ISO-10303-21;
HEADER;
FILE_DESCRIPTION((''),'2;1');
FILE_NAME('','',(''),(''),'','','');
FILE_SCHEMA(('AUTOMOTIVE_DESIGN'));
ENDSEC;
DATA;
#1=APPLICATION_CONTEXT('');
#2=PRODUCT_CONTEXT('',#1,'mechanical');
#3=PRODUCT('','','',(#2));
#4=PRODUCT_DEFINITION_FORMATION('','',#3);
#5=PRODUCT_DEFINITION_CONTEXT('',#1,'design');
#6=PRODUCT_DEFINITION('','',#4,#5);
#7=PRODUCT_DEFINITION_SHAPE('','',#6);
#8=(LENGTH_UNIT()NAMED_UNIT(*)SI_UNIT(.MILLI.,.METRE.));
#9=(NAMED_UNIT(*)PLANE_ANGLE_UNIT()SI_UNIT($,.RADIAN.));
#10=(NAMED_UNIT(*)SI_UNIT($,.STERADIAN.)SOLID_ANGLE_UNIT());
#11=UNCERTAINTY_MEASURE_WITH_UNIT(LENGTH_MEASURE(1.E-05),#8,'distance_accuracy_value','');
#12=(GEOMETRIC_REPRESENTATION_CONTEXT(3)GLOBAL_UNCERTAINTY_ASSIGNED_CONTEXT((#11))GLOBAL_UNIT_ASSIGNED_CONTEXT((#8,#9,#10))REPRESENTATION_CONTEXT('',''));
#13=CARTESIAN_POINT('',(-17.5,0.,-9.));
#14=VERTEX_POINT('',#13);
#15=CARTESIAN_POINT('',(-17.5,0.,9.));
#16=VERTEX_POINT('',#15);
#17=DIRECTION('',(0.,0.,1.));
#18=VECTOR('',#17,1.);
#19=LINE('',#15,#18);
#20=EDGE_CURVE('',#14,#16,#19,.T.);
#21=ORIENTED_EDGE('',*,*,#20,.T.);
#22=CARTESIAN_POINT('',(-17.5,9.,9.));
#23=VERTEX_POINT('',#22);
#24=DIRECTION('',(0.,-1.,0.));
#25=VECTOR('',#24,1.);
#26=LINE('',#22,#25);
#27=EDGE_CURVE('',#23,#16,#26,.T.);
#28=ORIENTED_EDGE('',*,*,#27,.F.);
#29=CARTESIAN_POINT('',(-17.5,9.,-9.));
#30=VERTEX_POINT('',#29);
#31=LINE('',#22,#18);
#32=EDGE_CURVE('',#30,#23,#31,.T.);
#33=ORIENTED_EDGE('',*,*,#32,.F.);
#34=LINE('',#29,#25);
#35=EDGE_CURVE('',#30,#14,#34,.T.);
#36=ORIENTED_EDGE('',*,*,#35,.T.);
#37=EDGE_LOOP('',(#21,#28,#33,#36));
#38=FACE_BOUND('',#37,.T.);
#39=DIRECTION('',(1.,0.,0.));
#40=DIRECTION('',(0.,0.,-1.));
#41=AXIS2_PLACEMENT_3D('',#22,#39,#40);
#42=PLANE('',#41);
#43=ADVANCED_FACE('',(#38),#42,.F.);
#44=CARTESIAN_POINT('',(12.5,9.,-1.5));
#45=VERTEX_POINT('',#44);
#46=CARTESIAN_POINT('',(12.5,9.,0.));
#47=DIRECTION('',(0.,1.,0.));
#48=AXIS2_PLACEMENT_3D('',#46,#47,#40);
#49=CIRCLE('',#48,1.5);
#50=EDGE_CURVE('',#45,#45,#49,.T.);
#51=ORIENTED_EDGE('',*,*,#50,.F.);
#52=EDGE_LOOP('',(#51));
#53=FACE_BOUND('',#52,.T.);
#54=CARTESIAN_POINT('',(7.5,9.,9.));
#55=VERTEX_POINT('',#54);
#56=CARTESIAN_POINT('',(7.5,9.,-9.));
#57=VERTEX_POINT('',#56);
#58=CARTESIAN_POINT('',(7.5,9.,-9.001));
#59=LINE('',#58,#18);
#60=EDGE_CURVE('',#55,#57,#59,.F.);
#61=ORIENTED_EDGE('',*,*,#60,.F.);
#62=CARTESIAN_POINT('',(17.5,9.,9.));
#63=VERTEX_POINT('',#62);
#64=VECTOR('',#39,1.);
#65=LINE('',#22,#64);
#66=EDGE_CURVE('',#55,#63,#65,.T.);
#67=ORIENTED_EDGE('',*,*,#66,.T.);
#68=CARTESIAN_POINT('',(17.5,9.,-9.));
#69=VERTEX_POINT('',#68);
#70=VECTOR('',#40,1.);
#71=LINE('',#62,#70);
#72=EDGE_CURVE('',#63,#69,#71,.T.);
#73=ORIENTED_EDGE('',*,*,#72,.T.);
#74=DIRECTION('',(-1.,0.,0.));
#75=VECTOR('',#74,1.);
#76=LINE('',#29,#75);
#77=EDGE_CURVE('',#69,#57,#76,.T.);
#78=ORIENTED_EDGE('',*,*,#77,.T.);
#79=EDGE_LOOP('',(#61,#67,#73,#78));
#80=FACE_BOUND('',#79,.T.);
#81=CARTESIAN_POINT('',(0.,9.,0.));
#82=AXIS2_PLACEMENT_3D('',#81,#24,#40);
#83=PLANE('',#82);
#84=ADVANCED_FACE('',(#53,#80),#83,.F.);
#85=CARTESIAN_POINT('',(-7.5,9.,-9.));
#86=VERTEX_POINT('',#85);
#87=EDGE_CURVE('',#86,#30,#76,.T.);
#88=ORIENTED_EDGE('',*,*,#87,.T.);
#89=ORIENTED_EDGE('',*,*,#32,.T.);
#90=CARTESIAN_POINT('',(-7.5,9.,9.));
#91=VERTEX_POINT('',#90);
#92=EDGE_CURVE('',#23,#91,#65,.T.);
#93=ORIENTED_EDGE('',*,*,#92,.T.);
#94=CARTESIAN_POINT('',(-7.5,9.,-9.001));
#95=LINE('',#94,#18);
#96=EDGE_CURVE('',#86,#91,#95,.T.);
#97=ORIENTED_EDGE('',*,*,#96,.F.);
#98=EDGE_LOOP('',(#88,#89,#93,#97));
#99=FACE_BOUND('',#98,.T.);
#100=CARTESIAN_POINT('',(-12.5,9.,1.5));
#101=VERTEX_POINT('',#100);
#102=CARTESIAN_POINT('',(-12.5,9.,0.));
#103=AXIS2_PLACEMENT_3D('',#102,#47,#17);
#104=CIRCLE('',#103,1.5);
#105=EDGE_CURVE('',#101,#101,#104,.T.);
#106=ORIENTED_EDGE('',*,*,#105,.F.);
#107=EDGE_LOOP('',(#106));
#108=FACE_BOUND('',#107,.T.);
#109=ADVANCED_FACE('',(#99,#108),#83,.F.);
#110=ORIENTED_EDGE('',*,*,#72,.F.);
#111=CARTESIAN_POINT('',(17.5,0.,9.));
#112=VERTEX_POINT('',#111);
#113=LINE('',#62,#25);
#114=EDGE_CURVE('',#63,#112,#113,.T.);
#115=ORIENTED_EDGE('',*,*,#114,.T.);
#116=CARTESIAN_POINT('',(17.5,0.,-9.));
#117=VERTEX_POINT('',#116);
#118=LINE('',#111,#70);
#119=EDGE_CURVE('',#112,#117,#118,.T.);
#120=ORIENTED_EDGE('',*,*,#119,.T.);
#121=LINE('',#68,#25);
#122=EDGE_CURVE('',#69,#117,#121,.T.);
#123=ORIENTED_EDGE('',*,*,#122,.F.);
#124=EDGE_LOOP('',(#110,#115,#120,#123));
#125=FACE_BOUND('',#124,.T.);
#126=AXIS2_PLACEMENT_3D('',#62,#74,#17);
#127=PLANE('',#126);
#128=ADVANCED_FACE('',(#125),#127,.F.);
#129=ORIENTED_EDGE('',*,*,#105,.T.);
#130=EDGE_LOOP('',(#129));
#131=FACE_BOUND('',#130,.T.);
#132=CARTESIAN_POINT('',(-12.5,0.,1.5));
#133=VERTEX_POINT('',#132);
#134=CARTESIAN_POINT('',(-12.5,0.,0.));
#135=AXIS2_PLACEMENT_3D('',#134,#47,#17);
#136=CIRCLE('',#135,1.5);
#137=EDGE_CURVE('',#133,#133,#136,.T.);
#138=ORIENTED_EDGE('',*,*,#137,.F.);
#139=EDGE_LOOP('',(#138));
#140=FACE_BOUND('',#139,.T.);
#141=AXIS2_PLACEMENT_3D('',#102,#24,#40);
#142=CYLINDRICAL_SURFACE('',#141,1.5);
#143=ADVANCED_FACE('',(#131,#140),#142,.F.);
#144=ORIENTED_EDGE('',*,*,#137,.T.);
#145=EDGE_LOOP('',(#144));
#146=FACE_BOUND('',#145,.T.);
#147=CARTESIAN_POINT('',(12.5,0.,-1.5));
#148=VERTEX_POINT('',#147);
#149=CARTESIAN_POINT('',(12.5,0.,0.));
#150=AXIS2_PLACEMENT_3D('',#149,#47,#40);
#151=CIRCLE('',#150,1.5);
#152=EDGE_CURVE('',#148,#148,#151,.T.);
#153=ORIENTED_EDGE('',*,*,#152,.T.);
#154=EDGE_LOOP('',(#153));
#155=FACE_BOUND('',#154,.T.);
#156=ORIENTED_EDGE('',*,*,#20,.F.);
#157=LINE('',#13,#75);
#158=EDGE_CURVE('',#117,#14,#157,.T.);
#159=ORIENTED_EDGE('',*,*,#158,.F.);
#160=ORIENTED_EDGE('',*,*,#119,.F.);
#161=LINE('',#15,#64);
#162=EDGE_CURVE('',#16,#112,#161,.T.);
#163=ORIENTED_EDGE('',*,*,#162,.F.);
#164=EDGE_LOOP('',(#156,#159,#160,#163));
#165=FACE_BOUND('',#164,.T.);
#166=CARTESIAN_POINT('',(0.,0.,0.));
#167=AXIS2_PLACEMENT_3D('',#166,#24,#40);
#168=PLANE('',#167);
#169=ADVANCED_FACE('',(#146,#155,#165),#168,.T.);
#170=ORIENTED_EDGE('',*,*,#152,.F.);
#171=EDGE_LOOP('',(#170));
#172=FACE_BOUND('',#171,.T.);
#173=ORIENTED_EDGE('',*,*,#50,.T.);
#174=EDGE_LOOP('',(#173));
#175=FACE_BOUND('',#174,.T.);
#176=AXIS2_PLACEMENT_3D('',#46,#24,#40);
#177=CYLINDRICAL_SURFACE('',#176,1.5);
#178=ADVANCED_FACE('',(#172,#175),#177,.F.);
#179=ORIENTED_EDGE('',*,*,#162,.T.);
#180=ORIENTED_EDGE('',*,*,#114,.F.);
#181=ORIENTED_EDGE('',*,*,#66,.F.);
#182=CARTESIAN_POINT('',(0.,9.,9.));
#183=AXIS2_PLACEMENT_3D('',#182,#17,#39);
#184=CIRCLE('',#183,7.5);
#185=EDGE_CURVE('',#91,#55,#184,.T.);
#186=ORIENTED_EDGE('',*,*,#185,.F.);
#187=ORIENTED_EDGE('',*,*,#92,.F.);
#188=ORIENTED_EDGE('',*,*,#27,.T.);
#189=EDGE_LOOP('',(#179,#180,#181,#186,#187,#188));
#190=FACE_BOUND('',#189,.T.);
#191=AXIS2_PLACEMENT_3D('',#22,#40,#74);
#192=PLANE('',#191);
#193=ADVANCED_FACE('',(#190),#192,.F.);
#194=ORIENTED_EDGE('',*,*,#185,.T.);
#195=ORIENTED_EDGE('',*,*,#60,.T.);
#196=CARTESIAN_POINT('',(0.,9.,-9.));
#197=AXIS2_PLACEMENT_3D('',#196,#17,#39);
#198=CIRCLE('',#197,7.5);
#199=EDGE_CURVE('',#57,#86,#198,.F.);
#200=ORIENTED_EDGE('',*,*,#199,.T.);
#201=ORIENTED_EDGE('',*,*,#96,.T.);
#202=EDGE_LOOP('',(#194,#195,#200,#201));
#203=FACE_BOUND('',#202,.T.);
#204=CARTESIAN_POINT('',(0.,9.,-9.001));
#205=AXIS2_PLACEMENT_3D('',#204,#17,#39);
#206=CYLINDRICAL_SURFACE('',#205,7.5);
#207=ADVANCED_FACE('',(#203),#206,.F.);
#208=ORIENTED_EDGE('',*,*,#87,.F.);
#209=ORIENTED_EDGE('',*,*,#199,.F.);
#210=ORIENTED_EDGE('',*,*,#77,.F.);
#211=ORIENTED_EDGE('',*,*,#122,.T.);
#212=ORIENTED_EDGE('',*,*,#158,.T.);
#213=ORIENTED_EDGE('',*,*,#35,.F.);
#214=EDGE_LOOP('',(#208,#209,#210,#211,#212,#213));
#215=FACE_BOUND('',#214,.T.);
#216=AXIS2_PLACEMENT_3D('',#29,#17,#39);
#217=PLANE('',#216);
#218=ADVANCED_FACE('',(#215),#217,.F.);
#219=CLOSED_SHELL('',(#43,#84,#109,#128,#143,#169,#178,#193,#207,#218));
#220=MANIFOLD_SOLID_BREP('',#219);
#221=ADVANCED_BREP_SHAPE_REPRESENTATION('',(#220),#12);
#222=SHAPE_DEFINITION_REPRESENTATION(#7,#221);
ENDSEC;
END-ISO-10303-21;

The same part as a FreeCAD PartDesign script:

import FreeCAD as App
import Part
import Sketcher
from FreeCAD import Vector


def add_polygon(sketch, points):
    """Adds a closed chain of lines whose ends are joined by coincident constraints."""
    first, n = sketch.GeometryCount, len(points)
    for a, b in zip(points, points[1:] + points[:1]):
        sketch.addGeometry(Part.LineSegment(App.Vector(*a, 0), App.Vector(*b, 0)), False)
    for i in range(n):
        sketch.addConstraint(Sketcher.Constraint("Coincident", first + i, 2, first + (i + 1) % n, 1))

doc = App.newDocument("Part")
params = doc.addObject("Spreadsheet::Sheet", "Params")
for row, (alias, value) in enumerate([
    ("sketch1_diameter", "3 mm"),
    ("sketch1_width", "35 mm"),
    ("sketch1_height", "18 mm"),
    ("pad1_length", "9 mm"),
    ("sketch2_diameter", "15 mm"),
], start=1):
    params.set(f"A{row}", alias)
    params.set(f"B{row}", "=" + value)
    params.setAlias(f"B{row}", alias)

body = doc.addObject("PartDesign::Body", "Body")

sketch1 = body.newObject("Sketcher::SketchObject", "Sketch")
sketch1.AttachmentSupport = (doc.getObject("XZ_Plane"), [""])
sketch1.MapMode = "FlatFace"
add_polygon(sketch1, [(-17.5, -9), (-17.5, 9), (17.5, 9), (17.5, -9)])
sketch1.addGeometry(Part.Circle(Vector(-12.5, 0, 0), Vector(0, 0, 1), 1.5), False)
sketch1.addGeometry(Part.Circle(Vector(12.5, 0, 0), Vector(0, 0, 1), 1.5), False)
sketch1.addConstraint([
    Sketcher.Constraint("Vertical", 0),
    Sketcher.Constraint("Horizontal", 1),
    Sketcher.Constraint("Vertical", 2),
    Sketcher.Constraint("Horizontal", 3),
    Sketcher.Constraint("Equal", 4, 5),
    Sketcher.Constraint("Symmetric", 4, 3, 5, 3, -1, 1),
    Sketcher.Constraint("Symmetric", 0, 2, 2, 2, -1, 1),
    Sketcher.Constraint("PointOnObject", 4, 3, -1),
    Sketcher.Constraint("Diameter", 4, 3.0),
    Sketcher.Constraint("DistanceX", 1, 1, 1, 2, 35.0),
    Sketcher.Constraint("DistanceY", 0, 1, 0, 2, 18.0),
    Sketcher.Constraint("DistanceX", 4, 3, 5, 3, 25.0),
])
sketch1.setExpression("Constraints[12]", "Params.sketch1_diameter")
sketch1.setExpression("Constraints[13]", "Params.sketch1_width")
sketch1.setExpression("Constraints[14]", "Params.sketch1_height")
pad1 = body.newObject("PartDesign::Pad", "Pad")
pad1.Profile = sketch1
pad1.setExpression("Length", "Params.pad1_length")
pad1.Reversed = True

sketch2 = body.newObject("Sketcher::SketchObject", "Sketch001")
sketch2.AttachmentSupport = (doc.getObject("XY_Plane"), [""])
sketch2.MapMode = "FlatFace"
sketch2.AttachmentOffset = App.Placement(Vector(0, 0, 9), App.Rotation())
sketch2.addGeometry(Part.Circle(Vector(0, 9, 0), Vector(0, 0, 1), 8), False)
sketch2.addConstraint([
    Sketcher.Constraint("PointOnObject", 0, 3, -2),
    Sketcher.Constraint("Diameter", 0, 15.0),
    Sketcher.Constraint("DistanceY", -1, 1, 0, 3, 9.0),
])
sketch2.setExpression("Constraints[1]", "Params.sketch2_diameter")
pocket1 = body.newObject("PartDesign::Pocket", "Pocket")
pocket1.Profile = sketch2
pocket1.Type = "UpToFirst"

doc.recompute()
